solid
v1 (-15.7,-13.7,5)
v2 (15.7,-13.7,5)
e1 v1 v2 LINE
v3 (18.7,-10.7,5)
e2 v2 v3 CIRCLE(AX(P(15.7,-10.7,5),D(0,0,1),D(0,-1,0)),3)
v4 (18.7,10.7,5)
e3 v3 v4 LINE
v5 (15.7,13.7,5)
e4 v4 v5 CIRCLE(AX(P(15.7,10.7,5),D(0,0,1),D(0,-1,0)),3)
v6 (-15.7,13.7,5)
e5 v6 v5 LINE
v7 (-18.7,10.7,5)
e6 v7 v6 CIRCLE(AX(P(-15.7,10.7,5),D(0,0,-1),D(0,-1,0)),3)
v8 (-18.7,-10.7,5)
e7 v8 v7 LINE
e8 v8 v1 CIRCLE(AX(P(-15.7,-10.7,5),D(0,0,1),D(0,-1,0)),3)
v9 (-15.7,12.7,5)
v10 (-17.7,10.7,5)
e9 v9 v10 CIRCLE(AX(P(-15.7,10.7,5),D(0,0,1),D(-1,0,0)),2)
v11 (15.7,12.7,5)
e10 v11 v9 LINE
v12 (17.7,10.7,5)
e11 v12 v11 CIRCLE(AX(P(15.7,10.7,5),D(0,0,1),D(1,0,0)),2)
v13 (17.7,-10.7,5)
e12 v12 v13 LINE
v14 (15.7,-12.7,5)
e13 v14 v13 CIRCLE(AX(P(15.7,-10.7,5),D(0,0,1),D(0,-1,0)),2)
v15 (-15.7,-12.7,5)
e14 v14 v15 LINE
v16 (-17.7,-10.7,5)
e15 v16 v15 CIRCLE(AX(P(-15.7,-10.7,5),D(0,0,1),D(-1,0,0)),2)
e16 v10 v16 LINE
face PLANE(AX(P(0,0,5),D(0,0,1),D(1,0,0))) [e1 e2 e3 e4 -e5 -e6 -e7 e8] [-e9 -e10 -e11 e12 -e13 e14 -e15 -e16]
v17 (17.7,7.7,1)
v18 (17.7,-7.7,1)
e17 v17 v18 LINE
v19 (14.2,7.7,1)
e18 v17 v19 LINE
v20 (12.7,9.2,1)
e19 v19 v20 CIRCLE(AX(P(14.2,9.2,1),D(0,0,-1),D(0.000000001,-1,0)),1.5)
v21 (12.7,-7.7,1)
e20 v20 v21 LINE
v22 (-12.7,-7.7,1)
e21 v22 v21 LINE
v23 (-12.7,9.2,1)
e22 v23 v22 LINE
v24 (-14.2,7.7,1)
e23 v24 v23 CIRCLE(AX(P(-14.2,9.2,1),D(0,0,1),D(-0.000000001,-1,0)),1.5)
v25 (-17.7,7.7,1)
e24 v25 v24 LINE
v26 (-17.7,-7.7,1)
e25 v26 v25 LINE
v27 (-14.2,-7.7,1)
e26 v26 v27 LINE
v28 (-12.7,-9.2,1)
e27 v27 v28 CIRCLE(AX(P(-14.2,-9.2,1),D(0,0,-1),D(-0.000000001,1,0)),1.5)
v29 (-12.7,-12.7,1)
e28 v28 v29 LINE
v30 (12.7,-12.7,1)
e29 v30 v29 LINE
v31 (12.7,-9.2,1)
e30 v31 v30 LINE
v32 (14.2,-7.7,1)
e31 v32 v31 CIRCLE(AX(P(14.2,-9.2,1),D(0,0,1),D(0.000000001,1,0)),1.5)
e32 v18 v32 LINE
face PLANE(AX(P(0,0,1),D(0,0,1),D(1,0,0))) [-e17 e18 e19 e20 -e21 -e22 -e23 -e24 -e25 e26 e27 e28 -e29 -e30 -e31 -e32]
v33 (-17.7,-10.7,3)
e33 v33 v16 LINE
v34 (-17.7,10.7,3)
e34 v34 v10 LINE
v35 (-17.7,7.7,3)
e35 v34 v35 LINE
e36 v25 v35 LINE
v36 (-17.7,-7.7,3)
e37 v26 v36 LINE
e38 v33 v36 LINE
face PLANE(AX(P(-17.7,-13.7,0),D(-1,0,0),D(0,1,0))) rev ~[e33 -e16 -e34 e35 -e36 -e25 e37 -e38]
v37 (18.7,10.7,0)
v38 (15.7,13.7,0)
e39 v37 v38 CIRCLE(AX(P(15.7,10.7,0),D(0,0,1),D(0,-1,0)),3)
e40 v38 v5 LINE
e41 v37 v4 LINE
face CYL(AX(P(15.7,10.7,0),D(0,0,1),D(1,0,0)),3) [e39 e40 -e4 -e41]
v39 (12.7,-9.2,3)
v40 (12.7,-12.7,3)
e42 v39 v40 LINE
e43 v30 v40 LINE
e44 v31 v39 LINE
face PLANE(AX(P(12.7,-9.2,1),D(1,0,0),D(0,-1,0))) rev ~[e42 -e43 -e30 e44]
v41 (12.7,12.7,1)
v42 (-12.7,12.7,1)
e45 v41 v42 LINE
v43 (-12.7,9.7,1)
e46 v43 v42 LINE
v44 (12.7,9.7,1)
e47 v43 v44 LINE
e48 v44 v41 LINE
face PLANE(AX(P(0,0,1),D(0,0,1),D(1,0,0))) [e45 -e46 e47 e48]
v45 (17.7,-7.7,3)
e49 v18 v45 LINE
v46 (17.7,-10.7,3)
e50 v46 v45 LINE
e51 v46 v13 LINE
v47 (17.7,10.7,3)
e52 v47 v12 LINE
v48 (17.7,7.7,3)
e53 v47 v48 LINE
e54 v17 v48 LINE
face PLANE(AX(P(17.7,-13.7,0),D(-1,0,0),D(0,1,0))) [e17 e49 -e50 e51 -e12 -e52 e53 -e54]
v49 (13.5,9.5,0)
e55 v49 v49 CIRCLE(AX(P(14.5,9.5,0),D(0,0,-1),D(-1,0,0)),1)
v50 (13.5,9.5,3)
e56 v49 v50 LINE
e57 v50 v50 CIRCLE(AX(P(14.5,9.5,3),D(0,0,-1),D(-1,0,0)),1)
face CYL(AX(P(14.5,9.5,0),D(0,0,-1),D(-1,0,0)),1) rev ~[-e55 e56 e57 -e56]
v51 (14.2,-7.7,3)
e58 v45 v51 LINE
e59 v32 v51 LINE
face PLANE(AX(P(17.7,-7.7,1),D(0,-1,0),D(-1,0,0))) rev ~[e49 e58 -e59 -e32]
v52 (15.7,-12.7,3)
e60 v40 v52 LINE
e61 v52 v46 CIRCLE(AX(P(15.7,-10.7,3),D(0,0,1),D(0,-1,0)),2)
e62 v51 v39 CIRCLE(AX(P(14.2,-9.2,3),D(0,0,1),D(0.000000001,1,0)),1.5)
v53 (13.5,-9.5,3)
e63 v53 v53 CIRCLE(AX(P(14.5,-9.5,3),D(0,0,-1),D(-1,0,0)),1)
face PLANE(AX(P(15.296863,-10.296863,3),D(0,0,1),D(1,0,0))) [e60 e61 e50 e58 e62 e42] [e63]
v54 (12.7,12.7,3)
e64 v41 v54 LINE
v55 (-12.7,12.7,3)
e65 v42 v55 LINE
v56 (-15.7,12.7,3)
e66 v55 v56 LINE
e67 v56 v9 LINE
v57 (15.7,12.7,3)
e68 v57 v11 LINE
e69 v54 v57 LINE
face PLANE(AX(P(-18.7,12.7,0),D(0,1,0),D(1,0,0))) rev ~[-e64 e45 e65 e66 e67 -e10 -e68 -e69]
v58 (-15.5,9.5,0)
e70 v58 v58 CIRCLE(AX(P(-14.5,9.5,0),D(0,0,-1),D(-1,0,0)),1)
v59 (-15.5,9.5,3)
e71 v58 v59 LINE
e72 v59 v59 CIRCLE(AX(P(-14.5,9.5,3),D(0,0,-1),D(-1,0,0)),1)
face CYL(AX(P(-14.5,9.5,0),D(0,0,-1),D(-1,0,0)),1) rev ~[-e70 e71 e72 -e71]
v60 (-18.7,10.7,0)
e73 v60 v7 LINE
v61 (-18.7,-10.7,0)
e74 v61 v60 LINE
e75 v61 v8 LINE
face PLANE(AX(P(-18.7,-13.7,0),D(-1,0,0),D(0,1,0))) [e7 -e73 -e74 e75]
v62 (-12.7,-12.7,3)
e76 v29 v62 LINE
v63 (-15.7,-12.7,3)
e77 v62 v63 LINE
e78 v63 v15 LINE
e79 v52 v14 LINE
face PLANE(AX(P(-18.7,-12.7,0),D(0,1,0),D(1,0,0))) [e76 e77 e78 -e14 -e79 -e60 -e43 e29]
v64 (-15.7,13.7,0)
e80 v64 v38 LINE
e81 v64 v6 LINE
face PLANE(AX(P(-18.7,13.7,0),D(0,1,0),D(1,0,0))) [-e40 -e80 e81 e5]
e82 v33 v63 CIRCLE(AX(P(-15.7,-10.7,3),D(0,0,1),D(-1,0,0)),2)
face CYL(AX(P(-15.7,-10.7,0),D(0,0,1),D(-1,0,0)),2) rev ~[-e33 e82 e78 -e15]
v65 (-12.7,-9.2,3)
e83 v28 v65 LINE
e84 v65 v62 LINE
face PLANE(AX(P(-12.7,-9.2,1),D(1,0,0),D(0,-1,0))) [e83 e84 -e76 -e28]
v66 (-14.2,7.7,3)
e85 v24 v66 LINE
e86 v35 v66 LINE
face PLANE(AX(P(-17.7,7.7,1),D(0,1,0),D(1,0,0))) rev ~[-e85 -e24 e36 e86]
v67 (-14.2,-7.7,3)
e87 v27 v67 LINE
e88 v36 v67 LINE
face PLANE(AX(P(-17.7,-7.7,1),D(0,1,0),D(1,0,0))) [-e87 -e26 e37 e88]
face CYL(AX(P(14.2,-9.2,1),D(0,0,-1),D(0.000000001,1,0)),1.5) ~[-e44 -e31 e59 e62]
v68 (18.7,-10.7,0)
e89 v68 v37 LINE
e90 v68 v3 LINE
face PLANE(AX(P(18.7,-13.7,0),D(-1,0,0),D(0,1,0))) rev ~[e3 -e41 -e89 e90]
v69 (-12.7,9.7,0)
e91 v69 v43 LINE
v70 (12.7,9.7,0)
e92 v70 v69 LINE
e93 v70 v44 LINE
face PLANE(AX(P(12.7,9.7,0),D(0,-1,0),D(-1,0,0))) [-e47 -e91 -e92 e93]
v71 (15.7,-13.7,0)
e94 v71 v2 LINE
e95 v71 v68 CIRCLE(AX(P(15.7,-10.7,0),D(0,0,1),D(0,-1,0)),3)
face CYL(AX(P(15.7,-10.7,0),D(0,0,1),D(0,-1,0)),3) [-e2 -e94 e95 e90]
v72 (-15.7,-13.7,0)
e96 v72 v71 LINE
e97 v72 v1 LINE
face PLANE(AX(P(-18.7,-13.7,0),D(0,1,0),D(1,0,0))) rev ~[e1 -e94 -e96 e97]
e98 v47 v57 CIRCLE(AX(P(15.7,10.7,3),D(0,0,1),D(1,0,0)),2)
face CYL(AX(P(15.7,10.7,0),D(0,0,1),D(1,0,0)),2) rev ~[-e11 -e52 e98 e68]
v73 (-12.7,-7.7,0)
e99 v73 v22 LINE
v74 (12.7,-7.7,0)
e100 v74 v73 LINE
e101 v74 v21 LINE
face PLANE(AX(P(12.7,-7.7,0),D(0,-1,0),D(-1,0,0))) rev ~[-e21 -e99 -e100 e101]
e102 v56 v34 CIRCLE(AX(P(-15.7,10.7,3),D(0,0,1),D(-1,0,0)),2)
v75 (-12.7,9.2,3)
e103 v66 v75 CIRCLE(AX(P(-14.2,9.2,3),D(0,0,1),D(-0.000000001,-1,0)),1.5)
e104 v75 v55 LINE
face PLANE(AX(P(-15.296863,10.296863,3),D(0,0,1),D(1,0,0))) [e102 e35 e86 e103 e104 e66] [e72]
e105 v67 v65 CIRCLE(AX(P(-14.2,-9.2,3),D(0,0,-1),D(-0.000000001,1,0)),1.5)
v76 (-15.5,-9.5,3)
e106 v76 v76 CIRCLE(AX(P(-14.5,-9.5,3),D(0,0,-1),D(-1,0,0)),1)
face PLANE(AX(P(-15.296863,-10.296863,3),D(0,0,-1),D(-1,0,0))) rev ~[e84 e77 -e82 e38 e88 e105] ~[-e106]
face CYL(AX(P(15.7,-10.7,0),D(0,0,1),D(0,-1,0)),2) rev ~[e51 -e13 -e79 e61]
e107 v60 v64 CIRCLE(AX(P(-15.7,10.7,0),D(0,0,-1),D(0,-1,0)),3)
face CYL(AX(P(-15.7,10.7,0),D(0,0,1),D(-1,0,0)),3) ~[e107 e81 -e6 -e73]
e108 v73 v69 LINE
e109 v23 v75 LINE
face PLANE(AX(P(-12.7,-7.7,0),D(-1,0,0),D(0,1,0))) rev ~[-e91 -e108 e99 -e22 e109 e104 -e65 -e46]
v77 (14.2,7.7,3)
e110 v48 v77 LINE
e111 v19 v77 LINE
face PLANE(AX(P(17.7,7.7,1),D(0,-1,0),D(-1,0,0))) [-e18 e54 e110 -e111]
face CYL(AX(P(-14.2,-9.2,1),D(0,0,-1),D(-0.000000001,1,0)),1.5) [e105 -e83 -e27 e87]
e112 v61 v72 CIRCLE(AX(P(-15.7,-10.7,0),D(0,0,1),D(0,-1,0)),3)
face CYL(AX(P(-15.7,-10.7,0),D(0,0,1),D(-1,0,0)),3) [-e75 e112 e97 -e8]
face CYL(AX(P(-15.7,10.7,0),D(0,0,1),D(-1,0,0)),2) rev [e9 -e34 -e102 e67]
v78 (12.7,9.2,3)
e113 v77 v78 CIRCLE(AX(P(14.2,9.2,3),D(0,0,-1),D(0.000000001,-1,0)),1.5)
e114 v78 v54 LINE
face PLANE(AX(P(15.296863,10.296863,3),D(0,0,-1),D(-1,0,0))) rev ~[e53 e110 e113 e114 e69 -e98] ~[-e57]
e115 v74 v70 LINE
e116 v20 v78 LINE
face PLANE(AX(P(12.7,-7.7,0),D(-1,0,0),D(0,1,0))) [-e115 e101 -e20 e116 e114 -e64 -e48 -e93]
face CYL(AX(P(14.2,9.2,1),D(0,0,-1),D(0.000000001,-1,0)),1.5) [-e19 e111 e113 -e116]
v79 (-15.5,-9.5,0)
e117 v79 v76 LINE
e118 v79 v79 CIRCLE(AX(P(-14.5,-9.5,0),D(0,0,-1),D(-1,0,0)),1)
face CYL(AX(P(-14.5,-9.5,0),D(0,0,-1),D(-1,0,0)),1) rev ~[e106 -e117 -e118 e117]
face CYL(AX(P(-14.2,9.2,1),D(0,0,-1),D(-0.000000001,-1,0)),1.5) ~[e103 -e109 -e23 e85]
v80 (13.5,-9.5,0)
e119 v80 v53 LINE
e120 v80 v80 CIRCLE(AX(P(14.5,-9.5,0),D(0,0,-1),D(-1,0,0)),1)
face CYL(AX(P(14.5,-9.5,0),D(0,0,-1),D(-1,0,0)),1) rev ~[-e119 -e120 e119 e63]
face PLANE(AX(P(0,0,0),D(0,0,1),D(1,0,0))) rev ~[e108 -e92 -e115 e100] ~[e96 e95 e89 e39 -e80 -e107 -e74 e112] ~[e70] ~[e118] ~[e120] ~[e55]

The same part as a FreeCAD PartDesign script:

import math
import FreeCAD as App
import Part
import Sketcher
from FreeCAD import Vector
Q = App.Units.Quantity


def edges_at(feature, points):
    """Names of the edges that pass closest to the given points."""
    edges = feature.Shape.Edges
    near = lambda p: min(range(len(edges)), key=lambda i: edges[i].distToShape(Part.Vertex(*p))[0])
    return sorted({f"Edge{near(p) + 1}" for p in points})


def faces_at(feature, points):
    """Names of the faces that lie closest to the given points."""
    faces = feature.Shape.Faces
    near = lambda p: min(range(len(faces)), key=lambda i: faces[i].distToShape(Part.Vertex(*p))[0])
    return sorted({f"Face{near(p) + 1}" for p in points})

doc = App.newDocument("Part")
body = doc.addObject("PartDesign::Body", "Body")

sketch1 = body.newObject("Sketcher::SketchObject", "Sketch")
sketch1.AttachmentSupport = (doc.getObject("XY_Plane"), [""])
sketch1.MapMode = "FlatFace"
sketch1.addGeometry([
    Part.LineSegment(Vector(-18.7, 13.7, 0), Vector(-18.7, -13.7, 0)),
    Part.LineSegment(Vector(-18.7, -13.7, 0), Vector(18.7, -13.7, 0)),
    Part.LineSegment(Vector(18.7, -13.7, 0), Vector(18.7, 13.7, 0)),
    Part.LineSegment(Vector(18.7, 13.7, 0), Vector(-18.7, 13.7, 0)),
], False)
sketch1.addConstraint([
    Sketcher.Constraint("Coincident", 0, 2, 1, 1),
    Sketcher.Constraint("Coincident", 1, 2, 2, 1),
    Sketcher.Constraint("Coincident", 2, 2, 3, 1),
    Sketcher.Constraint("Coincident", 3, 2, 0, 1),
    Sketcher.Constraint("Vertical", 0),
    Sketcher.Constraint("Horizontal", 1),
    Sketcher.Constraint("Vertical", 2),
    Sketcher.Constraint("Horizontal", 3),
    Sketcher.Constraint("Symmetric", 0, 2, 2, 2, -1, 1),
    Sketcher.Constraint("DistanceX", 1, 1, 1, 2, Q("37.4 mm")),
    Sketcher.Constraint("DistanceY", 0, 2, 0, 1, Q("27.4 mm")),
])
pad1 = body.newObject("PartDesign::Pad", "Pad")
pad1.Profile = sketch1
pad1.Length = 5
doc.recompute()

fillet = body.newObject("PartDesign::Fillet", "Fillet")
fillet.Base = (pad1, edges_at(pad1, [
    (18.7, -13.7, 2.5),
    (-18.7, -13.7, 2.5),
    (-18.7, 13.7, 2.5),
    (18.7, 13.7, 2.5),
]))
fillet.Radius = 3
doc.recompute()

thickness = body.newObject("PartDesign::Thickness", "Thickness")
thickness.Base = (fillet, faces_at(fillet, [(0, 0, 5)]))
thickness.Value = 1
thickness.Reversed = True
thickness.Join = "Intersection"

sketch2 = body.newObject("Sketcher::SketchObject", "Sketch001")
sketch2.AttachmentSupport = (doc.getObject("XY_Plane"), [""])
sketch2.MapMode = "FlatFace"
sketch2.addGeometry([
    Part.LineSegment(Vector(12.7, 9.7, 0), Vector(12.7, -7.7, 0)),
    Part.LineSegment(Vector(12.7, -7.7, 0), Vector(-12.7, -7.7, 0)),
    Part.LineSegment(Vector(-12.7, -7.7, 0), Vector(-12.7, 9.7, 0)),
    Part.LineSegment(Vector(-12.7, 9.7, 0), Vector(12.7, 9.7, 0)),
], False)
sketch2.addConstraint([
    Sketcher.Constraint("Coincident", 0, 2, 1, 1),
    Sketcher.Constraint("Coincident", 1, 2, 2, 1),
    Sketcher.Constraint("Coincident", 2, 2, 3, 1),
    Sketcher.Constraint("Coincident", 3, 2, 0, 1),
    Sketcher.Constraint("Vertical", 0),
    Sketcher.Constraint("Horizontal", 1),
    Sketcher.Constraint("Vertical", 2),
    Sketcher.Constraint("Horizontal", 3),
    Sketcher.Constraint("DistanceX", 1, 2, 1, 1, Q("25.4 mm")),
    Sketcher.Constraint("DistanceY", 0, 2, 0, 1, Q("17.4 mm")),
    Sketcher.Constraint("DistanceX", -1, 1, 0, 2, Q("12.7 mm")),
    Sketcher.Constraint("DistanceY", 0, 2, -1, 1, Q("7.7 mm")),
])
pocket1 = body.newObject("PartDesign::Pocket", "Pocket")
pocket1.Profile = sketch2
pocket1.Length = 10
pocket1.Reversed = True

sketch3 = body.newObject("Sketcher::SketchObject", "Sketch002")
sketch3.AttachmentSupport = (doc.getObject("XY_Plane"), [""])
sketch3.MapMode = "FlatFace"
sketch3.AttachmentOffset = App.Placement(Vector(0, 0, 1), App.Rotation())
sketch3.addGeometry([
    Part.LineSegment(Vector(-14.2, -7.7, 0), Vector(-17.7, -7.7, 0)),
    Part.LineSegment(Vector(-17.7, -7.7, 0), Vector(-17.7, -12.7, 0)),
    Part.LineSegment(Vector(-17.7, -12.7, 0), Vector(-12.7, -12.7, 0)),
    Part.LineSegment(Vector(-12.7, -12.7, 0), Vector(-12.7, -9.2, 0)),
    Part.ArcOfCircle(Part.Circle(Vector(-14.2, -9.2, 0), Vector(0, 0, 1), 1.5), math.radians(0), math.radians(90)),
    Part.LineSegment(Vector(12.7, -9.2, 0), Vector(12.7, -12.7, 0)),
    Part.LineSegment(Vector(12.7, -12.7, 0), Vector(17.7, -12.7, 0)),
    Part.LineSegment(Vector(17.7, -12.7, 0), Vector(17.7, -7.7, 0)),
    Part.LineSegment(Vector(17.7, -7.7, 0), Vector(14.2, -7.7, 0)),
    Part.ArcOfCircle(Part.Circle(Vector(14.2, -9.2, 0), Vector(0, 0, 1), 1.5), math.radians(90), math.radians(180)),
    Part.LineSegment(Vector(14.2, 7.7, 0), Vector(17.7, 7.7, 0)),
    Part.LineSegment(Vector(17.7, 7.7, 0), Vector(17.7, 12.7, 0)),
    Part.LineSegment(Vector(17.7, 12.7, 0), Vector(12.7, 12.7, 0)),
    Part.LineSegment(Vector(12.7, 12.7, 0), Vector(12.7, 9.2, 0)),
    Part.ArcOfCircle(Part.Circle(Vector(14.2, 9.2, 0), Vector(0, 0, 1), 1.5), math.radians(180), math.radians(270)),
    Part.LineSegment(Vector(-12.7, 9.2, 0), Vector(-12.7, 12.7, 0)),
    Part.LineSegment(Vector(-12.7, 12.7, 0), Vector(-17.7, 12.7, 0)),
    Part.LineSegment(Vector(-17.7, 12.7, 0), Vector(-17.7, 7.7, 0)),
    Part.LineSegment(Vector(-17.7, 7.7, 0), Vector(-14.2, 7.7, 0)),
    Part.ArcOfCircle(Part.Circle(Vector(-14.2, 9.2, 0), Vector(0, 0, 1), 1.5), math.radians(-90), math.radians(0)),
], False)
sketch3.addConstraint([
    Sketcher.Constraint("Coincident", 0, 2, 1, 1),
    Sketcher.Constraint("Coincident", 1, 2, 2, 1),
    Sketcher.Constraint("Coincident", 2, 2, 3, 1),
    Sketcher.Constraint("Tangent", 3, 2, 4, 1),
    Sketcher.Constraint("Tangent", 4, 2, 0, 1),
    Sketcher.Constraint("Coincident", 5, 2, 6, 1),
    Sketcher.Constraint("Coincident", 6, 2, 7, 1),
    Sketcher.Constraint("Coincident", 7, 2, 8, 1),
    Sketcher.Constraint("Tangent", 8, 2, 9, 1),
    Sketcher.Constraint("Tangent", 9, 2, 5, 1),
    Sketcher.Constraint("Coincident", 10, 2, 11, 1),
    Sketcher.Constraint("Coincident", 11, 2, 12, 1),
    Sketcher.Constraint("Coincident", 12, 2, 13, 1),
    Sketcher.Constraint("Tangent", 13, 2, 14, 1),
    Sketcher.Constraint("Tangent", 14, 2, 10, 1),
    Sketcher.Constraint("Coincident", 15, 2, 16, 1),
    Sketcher.Constraint("Coincident", 16, 2, 17, 1),
    Sketcher.Constraint("Coincident", 17, 2, 18, 1),
    Sketcher.Constraint("Tangent", 18, 2, 19, 1),
    Sketcher.Constraint("Tangent", 19, 2, 15, 1),
    Sketcher.Constraint("Horizontal", 0),
    Sketcher.Constraint("Vertical", 1),
    Sketcher.Constraint("Horizontal", 2),
    Sketcher.Constraint("Vertical", 3),
    Sketcher.Constraint("Vertical", 5),
    Sketcher.Constraint("Horizontal", 6),
    Sketcher.Constraint("Vertical", 7),
    Sketcher.Constraint("Horizontal", 8),
    Sketcher.Constraint("Horizontal", 10),
    Sketcher.Constraint("Vertical", 11),
    Sketcher.Constraint("Horizontal", 12),
    Sketcher.Constraint("Vertical", 13),
    Sketcher.Constraint("Vertical", 15),
    Sketcher.Constraint("Horizontal", 16),
    Sketcher.Constraint("Vertical", 17),
    Sketcher.Constraint("Horizontal", 18),
    Sketcher.Constraint("Equal", 4, 9),
    Sketcher.Constraint("Equal", 9, 14),
    Sketcher.Constraint("Equal", 14, 19),
    Sketcher.Constraint("Symmetric", 4, 3, 14, 3, -1, 1),
    Sketcher.Constraint("Symmetric", 9, 3, 19, 3, -1, 1),
    Sketcher.Constraint("Symmetric", 1, 2, 11, 2, -1, 1),
    Sketcher.Constraint("Symmetric", 6, 2, 16, 2, -1, 1),
    Sketcher.Constraint("Symmetric", 4, 3, 9, 3, -2),
    Sketcher.Constraint("Symmetric", 1, 2, 6, 2, -2),
    Sketcher.Constraint("Equal", 16, 1),
    Sketcher.Constraint("Radius", 4, Q("1.5 mm")),
    Sketcher.Constraint("DistanceX", 2, 1, 2, 2, Q("5 mm")),
    Sketcher.Constraint("DistanceX", 4, 3, -1, 1, Q("14.2 mm")),
    Sketcher.Constraint("DistanceY", 4, 3, -1, 1, Q("9.2 mm")),
])
pad2 = body.newObject("PartDesign::Pad", "Pad001")
pad2.Profile = sketch3
pad2.Length = 2

sketch4 = body.newObject("Sketcher::SketchObject", "Sketch003")
sketch4.AttachmentSupport = (doc.getObject("XY_Plane"), [""])
sketch4.MapMode = "FlatFace"
sketch4.addGeometry([
    Part.Circle(Vector(-14.5, -9.5, 0), Vector(0, 0, 1), 1),
    Part.Circle(Vector(-14.5, 9.5, 0), Vector(0, 0, 1), 1),
    Part.Circle(Vector(14.5, 9.5, 0), Vector(0, 0, 1), 1),
    Part.Circle(Vector(14.5, -9.5, 0), Vector(0, 0, 1), 1),
], False)
sketch4.addConstraint([
    Sketcher.Constraint("Equal", 0, 1),
    Sketcher.Constraint("Equal", 1, 2),
    Sketcher.Constraint("Equal", 2, 3),
    Sketcher.Constraint("Symmetric", 0, 3, 2, 3, -1, 1),
    Sketcher.Constraint("Symmetric", 1, 3, 3, 3, -1, 1),
    Sketcher.Constraint("Symmetric", 1, 3, 2, 3, -2),
    Sketcher.Constraint("Diameter", 0, Q("2 mm")),
    Sketcher.Constraint("DistanceY", 0, 3, 1, 3, Q("19 mm")),
    Sketcher.Constraint("DistanceX", 1, 3, 2, 3, Q("29 mm")),
])
pocket2 = body.newObject("PartDesign::Pocket", "Pocket001")
pocket2.Profile = sketch4
pocket2.Type = "ThroughAll"
pocket2.Reversed = True

doc.recompute()
